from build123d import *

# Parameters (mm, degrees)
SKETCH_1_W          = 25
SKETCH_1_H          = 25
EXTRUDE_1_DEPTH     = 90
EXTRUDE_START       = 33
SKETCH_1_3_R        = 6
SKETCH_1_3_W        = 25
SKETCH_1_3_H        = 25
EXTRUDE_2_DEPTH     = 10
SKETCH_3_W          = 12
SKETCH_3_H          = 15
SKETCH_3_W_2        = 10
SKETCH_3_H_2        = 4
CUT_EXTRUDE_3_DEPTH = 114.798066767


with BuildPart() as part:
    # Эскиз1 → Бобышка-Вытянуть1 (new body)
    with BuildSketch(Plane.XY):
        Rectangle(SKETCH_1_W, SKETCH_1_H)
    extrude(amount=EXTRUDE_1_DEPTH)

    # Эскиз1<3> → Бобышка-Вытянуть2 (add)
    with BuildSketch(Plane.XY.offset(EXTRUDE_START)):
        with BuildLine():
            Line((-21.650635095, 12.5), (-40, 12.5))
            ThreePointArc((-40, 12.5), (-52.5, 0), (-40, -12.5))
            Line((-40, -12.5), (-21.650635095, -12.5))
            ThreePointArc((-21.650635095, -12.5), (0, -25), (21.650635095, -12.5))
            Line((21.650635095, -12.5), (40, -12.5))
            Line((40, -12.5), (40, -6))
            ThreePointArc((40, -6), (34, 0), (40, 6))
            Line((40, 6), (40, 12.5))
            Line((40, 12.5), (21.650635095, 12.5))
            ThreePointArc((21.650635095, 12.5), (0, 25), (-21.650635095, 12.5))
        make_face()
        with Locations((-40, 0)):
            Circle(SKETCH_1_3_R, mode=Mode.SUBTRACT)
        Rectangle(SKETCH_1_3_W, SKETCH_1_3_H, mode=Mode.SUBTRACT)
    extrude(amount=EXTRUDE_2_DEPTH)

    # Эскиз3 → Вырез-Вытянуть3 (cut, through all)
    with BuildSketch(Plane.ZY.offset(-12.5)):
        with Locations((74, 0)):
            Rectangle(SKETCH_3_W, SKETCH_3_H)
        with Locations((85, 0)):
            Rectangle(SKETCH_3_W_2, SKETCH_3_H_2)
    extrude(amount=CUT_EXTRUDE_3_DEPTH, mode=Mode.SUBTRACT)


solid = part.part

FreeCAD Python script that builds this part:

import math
import FreeCAD as App
import Part
import Sketcher
from FreeCAD import Vector
Q = App.Units.Quantity


def add_polygon(sketch, points):
    """Adds a closed chain of lines whose ends are joined by coincident constraints."""
    first, n = sketch.GeometryCount, len(points)
    for a, b in zip(points, points[1:] + points[:1]):
        sketch.addGeometry(Part.LineSegment(App.Vector(*a, 0), App.Vector(*b, 0)), False)
    for i in range(n):
        sketch.addConstraint(Sketcher.Constraint("Coincident", first + i, 2, first + (i + 1) % n, 1))

doc = App.newDocument("Part")
body = doc.addObject("PartDesign::Body", "Body")

sketch1 = body.newObject("Sketcher::SketchObject", "Sketch")
sketch1.AttachmentSupport = (doc.getObject("XY_Plane"), [""])
sketch1.MapMode = "FlatFace"
add_polygon(sketch1, [(-12.5, 12.5), (-12.5, -12.5), (12.5, -12.5), (12.5, 12.5)])
sketch1.addConstraint(Sketcher.Constraint("Vertical", 0))
sketch1.addConstraint(Sketcher.Constraint("Horizontal", 1))
sketch1.addConstraint(Sketcher.Constraint("Vertical", 2))
sketch1.addConstraint(Sketcher.Constraint("Horizontal", 3))
sketch1.addConstraint(Sketcher.Constraint("Symmetric", 0, 2, 2, 2, -1, 1))
sketch1.addConstraint(Sketcher.Constraint("Equal", 3, 0))
sketch1.addConstraint(Sketcher.Constraint("DistanceX", 1, 1, 1, 2, Q("25 mm")))
pad1 = body.newObject("PartDesign::Pad", "Pad")
pad1.Profile = sketch1
pad1.Length = 90

sketch2 = body.newObject("Sketcher::SketchObject", "Sketch001")
sketch2.AttachmentSupport = (doc.getObject("XY_Plane"), [""])
sketch2.MapMode = "FlatFace"
sketch2.AttachmentOffset = App.Placement(Vector(0, 0, 33), App.Rotation())
sketch2.addGeometry(Part.LineSegment(Vector(-21.650635, 12.5, 0), Vector(-40, 12.5, 0)), False)
sketch2.addGeometry(Part.ArcOfCircle(Part.Circle(Vector(-40, 0, 0), Vector(0, 0, 1), 12.5), math.radians(90), math.radians(270)), False)
sketch2.addGeometry(Part.LineSegment(Vector(-40, -12.5, 0), Vector(-21.650635, -12.5, 0)), False)
sketch2.addGeometry(Part.ArcOfCircle(Part.Circle(Vector(0, 0, 0), Vector(0, 0, 1), 25), math.radians(-150), math.radians(-30)), False)
sketch2.addGeometry(Part.LineSegment(Vector(21.650635, -12.5, 0), Vector(40, -12.5, 0)), False)
sketch2.addGeometry(Part.LineSegment(Vector(40, -12.5, 0), Vector(40, -6, 0)), False)
sketch2.addGeometry(Part.ArcOfCircle(Part.Circle(Vector(40, 0, 0), Vector(0, 0, 1), 6), math.radians(90), math.radians(270)), False)
sketch2.addGeometry(Part.LineSegment(Vector(40, 6, 0), Vector(40, 12.5, 0)), False)
sketch2.addGeometry(Part.LineSegment(Vector(40, 12.5, 0), Vector(21.650635, 12.5, 0)), False)
sketch2.addGeometry(Part.ArcOfCircle(Part.Circle(Vector(0, 0, 0), Vector(0, 0, 1), 25), math.radians(30), math.radians(150)), False)
sketch2.addGeometry(Part.Circle(Vector(-40, 0, 0), Vector(0, 0, 1), 6), False)
add_polygon(sketch2, [(12.5, -12.5), (-12.5, -12.5), (-12.5, 12.5), (12.5, 12.5)])
sketch2.addConstraint(Sketcher.Constraint("Tangent", 0, 2, 1, 1))
sketch2.addConstraint(Sketcher.Constraint("Tangent", 1, 2, 2, 1))
sketch2.addConstraint(Sketcher.Constraint("Coincident", 2, 2, 3, 1))
sketch2.addConstraint(Sketcher.Constraint("Coincident", 3, 2, 4, 1))
sketch2.addConstraint(Sketcher.Constraint("Coincident", 4, 2, 5, 1))
sketch2.addConstraint(Sketcher.Constraint("Coincident", 5, 2, 6, 2))
sketch2.addConstraint(Sketcher.Constraint("Coincident", 6, 1, 7, 1))
sketch2.addConstraint(Sketcher.Constraint("Coincident", 7, 2, 8, 1))
sketch2.addConstraint(Sketcher.Constraint("Coincident", 8, 2, 9, 1))
sketch2.addConstraint(Sketcher.Constraint("Coincident", 9, 2, 0, 1))
sketch2.addConstraint(Sketcher.Constraint("Horizontal", 0))
sketch2.addConstraint(Sketcher.Constraint("Horizontal", 2))
sketch2.addConstraint(Sketcher.Constraint("Horizontal", 4))
sketch2.addConstraint(Sketcher.Constraint("Vertical", 5))
sketch2.addConstraint(Sketcher.Constraint("Vertical", 7))
sketch2.addConstraint(Sketcher.Constraint("Horizontal", 8))
sketch2.addConstraint(Sketcher.Constraint("Horizontal", 11))
sketch2.addConstraint(Sketcher.Constraint("Vertical", 12))
sketch2.addConstraint(Sketcher.Constraint("Horizontal", 13))
sketch2.addConstraint(Sketcher.Constraint("Vertical", 14))
sketch2.addConstraint(Sketcher.Constraint("Coincident", 3, 3, -1, 1))
sketch2.addConstraint(Sketcher.Constraint("Coincident", 9, 3, -1, 1))
sketch2.addConstraint(Sketcher.Constraint("Coincident", 10, 3, 1, 3))
sketch2.addConstraint(Sketcher.Constraint("Equal", 3, 9))
sketch2.addConstraint(Sketcher.Constraint("Equal", 6, 10))
sketch2.addConstraint(Sketcher.Constraint("Symmetric", 1, 3, 6, 3, -1, 1))
sketch2.addConstraint(Sketcher.Constraint("Symmetric", 0, 2, 4, 2, -1, 1))
sketch2.addConstraint(Sketcher.Constraint("Symmetric", 1, 2, 7, 2, -1, 1))
sketch2.addConstraint(Sketcher.Constraint("Symmetric", 11, 2, 13, 2, -1, 1))
sketch2.addConstraint(Sketcher.Constraint("PointOnObject", 1, 3, -1))
sketch2.addConstraint(Sketcher.Constraint("Horizontal", 4, 2, 11, 2))
sketch2.addConstraint(Sketcher.Constraint("Equal", 13, 12))
sketch2.addConstraint(Sketcher.Constraint("Diameter", 10, Q("12 mm")))
sketch2.addConstraint(Sketcher.Constraint("Radius", 3, Q("25 mm")))
sketch2.addConstraint(Sketcher.Constraint("Radius", 1, Q("12.5 mm")))
sketch2.addConstraint(Sketcher.Constraint("DistanceX", 1, 3, -1, 1, Q("40 mm")))
pad2 = body.newObject("PartDesign::Pad", "Pad001")
pad2.Profile = sketch2
pad2.Length = 10

sketch3 = body.newObject("Sketcher::SketchObject", "Sketch002")
sketch3.AttachmentSupport = (doc.getObject("YZ_Plane"), [""])
sketch3.MapMode = "FlatFace"
sketch3.AttachmentOffset = App.Placement(Vector(0, 0, 12.5), App.Rotation())
add_polygon(sketch3, [(7.5, 68), (-7.5, 68), (-7.5, 80), (-2, 80), (-2, 90), (2, 90), (2, 80), (7.5, 80)])
sketch3.addConstraint(Sketcher.Constraint("Horizontal", 0))
sketch3.addConstraint(Sketcher.Constraint("Vertical", 1))
sketch3.addConstraint(Sketcher.Constraint("Horizontal", 2))
sketch3.addConstraint(Sketcher.Constraint("Vertical", 3))
sketch3.addConstraint(Sketcher.Constraint("Horizontal", 4))
sketch3.addConstraint(Sketcher.Constraint("Vertical", 5))
sketch3.addConstraint(Sketcher.Constraint("Horizontal", 6))
sketch3.addConstraint(Sketcher.Constraint("Vertical", 7))
sketch3.addConstraint(Sketcher.Constraint("Symmetric", 2, 2, 5, 2, -2))
sketch3.addConstraint(Sketcher.Constraint("Equal", 2, 6))
sketch3.addConstraint(Sketcher.Constraint("DistanceX", 0, 2, 0, 1, Q("15 mm")))
sketch3.addConstraint(Sketcher.Constraint("DistanceX", 4, 1, 4, 2, Q("4 mm")))
sketch3.addConstraint(Sketcher.Constraint("DistanceY", 1, 1, 1, 2, Q("12 mm")))
sketch3.addConstraint(Sketcher.Constraint("DistanceY", 3, 1, 3, 2, Q("10 mm")))
sketch3.addConstraint(Sketcher.Constraint("DistanceY", -1, 1, 0, 2, Q("68 mm")))
pocket1 = body.newObject("PartDesign::Pocket", "Pocket")
pocket1.Profile = sketch3
pocket1.Type = "ThroughAll"

doc.recompute()
